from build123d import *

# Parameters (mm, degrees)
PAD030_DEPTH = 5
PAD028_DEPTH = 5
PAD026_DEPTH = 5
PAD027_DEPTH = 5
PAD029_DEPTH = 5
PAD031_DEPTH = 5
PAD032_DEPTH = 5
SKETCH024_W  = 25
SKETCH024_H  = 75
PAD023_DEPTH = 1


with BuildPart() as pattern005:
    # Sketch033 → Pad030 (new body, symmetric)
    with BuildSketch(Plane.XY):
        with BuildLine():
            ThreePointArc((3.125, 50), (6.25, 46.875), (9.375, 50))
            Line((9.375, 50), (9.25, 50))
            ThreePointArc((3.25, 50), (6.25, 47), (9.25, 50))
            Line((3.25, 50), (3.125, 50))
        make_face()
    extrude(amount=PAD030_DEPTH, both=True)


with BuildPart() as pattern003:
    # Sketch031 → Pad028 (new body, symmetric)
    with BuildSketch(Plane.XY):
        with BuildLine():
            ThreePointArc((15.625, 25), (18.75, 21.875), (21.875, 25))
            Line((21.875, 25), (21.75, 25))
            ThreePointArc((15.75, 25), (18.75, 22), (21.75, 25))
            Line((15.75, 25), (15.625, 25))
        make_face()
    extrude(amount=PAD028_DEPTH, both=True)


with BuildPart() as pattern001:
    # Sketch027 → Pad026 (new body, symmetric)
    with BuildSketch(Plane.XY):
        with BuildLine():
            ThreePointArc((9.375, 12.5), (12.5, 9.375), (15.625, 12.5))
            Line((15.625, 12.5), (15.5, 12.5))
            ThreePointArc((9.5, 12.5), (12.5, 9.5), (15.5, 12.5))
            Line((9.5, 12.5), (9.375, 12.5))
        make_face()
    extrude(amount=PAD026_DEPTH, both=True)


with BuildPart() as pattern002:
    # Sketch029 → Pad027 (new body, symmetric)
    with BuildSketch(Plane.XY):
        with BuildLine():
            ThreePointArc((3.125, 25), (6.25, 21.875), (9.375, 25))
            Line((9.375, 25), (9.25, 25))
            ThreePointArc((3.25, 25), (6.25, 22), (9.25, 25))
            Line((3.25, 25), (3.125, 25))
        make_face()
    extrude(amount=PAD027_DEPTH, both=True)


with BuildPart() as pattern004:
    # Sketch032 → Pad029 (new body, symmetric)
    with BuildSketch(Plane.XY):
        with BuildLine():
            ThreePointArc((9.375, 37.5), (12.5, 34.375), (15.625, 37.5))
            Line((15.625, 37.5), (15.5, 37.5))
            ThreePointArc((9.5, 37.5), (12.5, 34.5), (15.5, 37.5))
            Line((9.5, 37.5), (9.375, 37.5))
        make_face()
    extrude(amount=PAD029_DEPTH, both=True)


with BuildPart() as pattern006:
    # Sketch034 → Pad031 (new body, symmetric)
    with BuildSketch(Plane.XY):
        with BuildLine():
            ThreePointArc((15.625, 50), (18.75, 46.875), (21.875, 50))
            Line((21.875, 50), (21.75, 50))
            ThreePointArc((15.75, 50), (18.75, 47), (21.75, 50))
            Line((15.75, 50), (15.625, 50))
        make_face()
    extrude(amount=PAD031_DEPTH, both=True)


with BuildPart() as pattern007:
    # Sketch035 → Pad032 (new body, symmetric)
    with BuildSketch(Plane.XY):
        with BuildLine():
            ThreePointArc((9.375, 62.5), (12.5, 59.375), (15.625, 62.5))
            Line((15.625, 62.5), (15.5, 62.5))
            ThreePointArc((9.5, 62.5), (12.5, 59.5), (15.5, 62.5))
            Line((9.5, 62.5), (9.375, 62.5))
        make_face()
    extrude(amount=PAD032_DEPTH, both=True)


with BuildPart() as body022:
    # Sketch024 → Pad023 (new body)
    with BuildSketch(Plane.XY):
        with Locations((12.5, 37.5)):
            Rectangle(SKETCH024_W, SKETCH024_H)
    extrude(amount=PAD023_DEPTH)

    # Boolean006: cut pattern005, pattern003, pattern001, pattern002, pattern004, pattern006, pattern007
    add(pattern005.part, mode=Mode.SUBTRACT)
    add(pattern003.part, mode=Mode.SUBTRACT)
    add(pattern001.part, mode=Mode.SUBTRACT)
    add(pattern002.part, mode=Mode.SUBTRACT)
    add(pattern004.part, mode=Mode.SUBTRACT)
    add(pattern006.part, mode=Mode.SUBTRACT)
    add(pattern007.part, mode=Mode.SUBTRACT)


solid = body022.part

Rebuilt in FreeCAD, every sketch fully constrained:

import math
import FreeCAD as App
import Part
import Sketcher

V = App.Vector
Q = App.Units.Quantity


def add_polygon(sketch, points):
    """Adds a closed chain of lines whose ends are joined by coincident constraints."""
    first, n = sketch.GeometryCount, len(points)
    for a, b in zip(points, points[1:] + points[:1]):
        sketch.addGeometry(Part.LineSegment(App.Vector(*a, 0), App.Vector(*b, 0)), False)
    for i in range(n):
        sketch.addConstraint(Sketcher.Constraint("Coincident", first + i, 2, first + (i + 1) % n, 1))

doc = App.newDocument("Part")
params = doc.addObject("Spreadsheet::Sheet", "Params")
for row, (alias, value) in enumerate([
    ("sketch1_radius", "3 mm"),
    ("pad1_length", "10 mm"),
    ("sketch2_radius", "3 mm"),
    ("pad2_length", "10 mm"),
    ("sketch3_radius", "3 mm"),
    ("pad3_length", "10 mm"),
    ("sketch4_radius", "3 mm"),
    ("pad4_length", "10 mm"),
    ("sketch5_radius", "3 mm"),
    ("pad5_length", "10 mm"),
    ("sketch6_radius", "3 mm"),
    ("pad6_length", "10 mm"),
    ("sketch7_radius", "3 mm"),
    ("pad7_length", "10 mm"),
    ("sketch8_width", "25 mm"),
    ("sketch8_height", "75 mm"),
    ("pad8_length", "1 mm"),
], start=1):
    params.set(f"A{row}", alias)
    params.set(f"B{row}", "=" + value)
    params.setAlias(f"B{row}", alias)

body = doc.addObject("PartDesign::Body", "Body")

# Sketch on XY plane
sketch1 = body.newObject("Sketcher::SketchObject", "Sketch")
sketch1.AttachmentSupport = (doc.getObject("XY_Plane"), [""])
sketch1.MapMode = "FlatFace"
sketch1.addGeometry([
    Part.ArcOfCircle(Part.Circle(V(6.25, 50, 0), V(0, 0, 1), 3.12), math.radians(180), math.radians(360)),
    Part.LineSegment(V(9.38, 50, 0), V(9.25, 50, 0)),
    Part.ArcOfCircle(Part.Circle(V(6.25, 50, 0), V(0, 0, 1), 3), math.radians(180), math.radians(360)),
    Part.LineSegment(V(3.25, 50, 0), V(3.12, 50, 0)),
], False)
sketch1.addConstraint([
    Sketcher.Constraint("Coincident", 0, 2, 1, 1),
    Sketcher.Constraint("Coincident", 1, 2, 2, 2),
    Sketcher.Constraint("Coincident", 2, 1, 3, 1),
    Sketcher.Constraint("Coincident", 3, 2, 0, 1),
    Sketcher.Constraint("Horizontal", 1),
    Sketcher.Constraint("Horizontal", 3),
    Sketcher.Constraint("Coincident", 2, 3, 0, 3),
    Sketcher.Constraint("Horizontal", 2, 3, 0, 2),
    Sketcher.Constraint("Horizontal", 1, 2, 2, 1),
    Sketcher.Constraint("Radius", 2, Q("3 mm")),
    Sketcher.Constraint("DistanceY", -1, 1, 0, 3, Q("50 mm")),
    Sketcher.Constraint("Radius", 0, Q("3.125 mm")),
    Sketcher.Constraint("DistanceX", -1, 1, 0, 3, Q("6.25 mm")),
])
sketch1.setExpression("Constraints[9]", "Params.sketch1_radius")
pad1 = body.newObject("PartDesign::Pad", "Pad")
pad1.Profile = sketch1
pad1.setExpression("Length", "Params.pad1_length")
pad1.Midplane = True
body2 = doc.addObject("PartDesign::Body", "Body001")

# Sketch on XY plane
sketch2 = body2.newObject("Sketcher::SketchObject", "Sketch001")
sketch2.AttachmentSupport = (doc.getObject("XY_Plane001"), [""])
sketch2.MapMode = "FlatFace"
sketch2.addGeometry([
    Part.ArcOfCircle(Part.Circle(V(18.75, 25, 0), V(0, 0, 1), 3.12), math.radians(180), math.radians(360)),
    Part.LineSegment(V(21.88, 25, 0), V(21.75, 25, 0)),
    Part.ArcOfCircle(Part.Circle(V(18.75, 25, 0), V(0, 0, 1), 3), math.radians(180), math.radians(360)),
    Part.LineSegment(V(15.75, 25, 0), V(15.62, 25, 0)),
], False)
sketch2.addConstraint([
    Sketcher.Constraint("Coincident", 0, 2, 1, 1),
    Sketcher.Constraint("Coincident", 1, 2, 2, 2),
    Sketcher.Constraint("Coincident", 2, 1, 3, 1),
    Sketcher.Constraint("Coincident", 3, 2, 0, 1),
    Sketcher.Constraint("Horizontal", 1),
    Sketcher.Constraint("Horizontal", 3),
    Sketcher.Constraint("Coincident", 2, 3, 0, 3),
    Sketcher.Constraint("Horizontal", 2, 3, 0, 2),
    Sketcher.Constraint("Horizontal", 1, 2, 2, 1),
    Sketcher.Constraint("Radius", 2, Q("3 mm")),
    Sketcher.Constraint("DistanceY", -1, 1, 0, 3, Q("25 mm")),
    Sketcher.Constraint("Radius", 0, Q("3.125 mm")),
    Sketcher.Constraint("DistanceX", -1, 1, 0, 3, Q("18.75 mm")),
])
sketch2.setExpression("Constraints[9]", "Params.sketch2_radius")
pad2 = body2.newObject("PartDesign::Pad", "Pad001")
pad2.Profile = sketch2
pad2.setExpression("Length", "Params.pad2_length")
pad2.Midplane = True
body3 = doc.addObject("PartDesign::Body", "Body002")

# Sketch on XY plane
sketch3 = body3.newObject("Sketcher::SketchObject", "Sketch002")
sketch3.AttachmentSupport = (doc.getObject("XY_Plane002"), [""])
sketch3.MapMode = "FlatFace"
sketch3.addGeometry([
    Part.ArcOfCircle(Part.Circle(V(12.5, 12.5, 0), V(0, 0, 1), 3.12), math.radians(180), math.radians(360)),
    Part.LineSegment(V(15.62, 12.5, 0), V(15.5, 12.5, 0)),
    Part.ArcOfCircle(Part.Circle(V(12.5, 12.5, 0), V(0, 0, 1), 3), math.radians(180), math.radians(360)),
    Part.LineSegment(V(9.5, 12.5, 0), V(9.38, 12.5, 0)),
], False)
sketch3.addConstraint([
    Sketcher.Constraint("Coincident", 0, 2, 1, 1),
    Sketcher.Constraint("Coincident", 1, 2, 2, 2),
    Sketcher.Constraint("Coincident", 2, 1, 3, 1),
    Sketcher.Constraint("Coincident", 3, 2, 0, 1),
    Sketcher.Constraint("Horizontal", 1),
    Sketcher.Constraint("Horizontal", 3),
    Sketcher.Constraint("Coincident", 2, 3, 0, 3),
    Sketcher.Constraint("Horizontal", 2, 3, 0, 2),
    Sketcher.Constraint("Horizontal", 1, 2, 2, 1),
    Sketcher.Constraint("Radius", 2, Q("3 mm")),
    Sketcher.Constraint("Radius", 0, Q("3.125 mm")),
    Sketcher.Constraint("DistanceX", -1, 1, 0, 3, Q("12.5 mm")),
    Sketcher.Constraint("DistanceY", -1, 1, 0, 3, Q("12.5 mm")),
])
sketch3.setExpression("Constraints[9]", "Params.sketch3_radius")
pad3 = body3.newObject("PartDesign::Pad", "Pad002")
pad3.Profile = sketch3
pad3.setExpression("Length", "Params.pad3_length")
pad3.Midplane = True
body4 = doc.addObject("PartDesign::Body", "Body003")

# Sketch on XY plane
sketch4 = body4.newObject("Sketcher::SketchObject", "Sketch003")
sketch4.AttachmentSupport = (doc.getObject("XY_Plane003"), [""])
sketch4.MapMode = "FlatFace"
sketch4.addGeometry([
    Part.ArcOfCircle(Part.Circle(V(6.25, 25, 0), V(0, 0, 1), 3.12), math.radians(180), math.radians(360)),
    Part.LineSegment(V(9.38, 25, 0), V(9.25, 25, 0)),
    Part.ArcOfCircle(Part.Circle(V(6.25, 25, 0), V(0, 0, 1), 3), math.radians(180), math.radians(360)),
    Part.LineSegment(V(3.25, 25, 0), V(3.12, 25, 0)),
], False)
sketch4.addConstraint([
    Sketcher.Constraint("Coincident", 0, 2, 1, 1),
    Sketcher.Constraint("Coincident", 1, 2, 2, 2),
    Sketcher.Constraint("Coincident", 2, 1, 3, 1),
    Sketcher.Constraint("Coincident", 3, 2, 0, 1),
    Sketcher.Constraint("Horizontal", 1),
    Sketcher.Constraint("Horizontal", 3),
    Sketcher.Constraint("Coincident", 2, 3, 0, 3),
    Sketcher.Constraint("Horizontal", 2, 3, 0, 2),
    Sketcher.Constraint("Horizontal", 1, 2, 2, 1),
    Sketcher.Constraint("Radius", 2, Q("3 mm")),
    Sketcher.Constraint("DistanceY", -1, 1, 0, 3, Q("25 mm")),
    Sketcher.Constraint("Radius", 0, Q("3.125 mm")),
    Sketcher.Constraint("DistanceX", -1, 1, 0, 3, Q("6.25 mm")),
])
sketch4.setExpression("Constraints[9]", "Params.sketch4_radius")
pad4 = body4.newObject("PartDesign::Pad", "Pad003")
pad4.Profile = sketch4
pad4.setExpression("Length", "Params.pad4_length")
pad4.Midplane = True
body5 = doc.addObject("PartDesign::Body", "Body004")

# Sketch on XY plane
sketch5 = body5.newObject("Sketcher::SketchObject", "Sketch004")
sketch5.AttachmentSupport = (doc.getObject("XY_Plane004"), [""])
sketch5.MapMode = "FlatFace"
sketch5.addGeometry([
    Part.ArcOfCircle(Part.Circle(V(12.5, 37.5, 0), V(0, 0, 1), 3.12), math.radians(180), math.radians(360)),
    Part.LineSegment(V(15.62, 37.5, 0), V(15.5, 37.5, 0)),
    Part.ArcOfCircle(Part.Circle(V(12.5, 37.5, 0), V(0, 0, 1), 3), math.radians(180), math.radians(360)),
    Part.LineSegment(V(9.5, 37.5, 0), V(9.38, 37.5, 0)),
], False)
sketch5.addConstraint([
    Sketcher.Constraint("Coincident", 0, 2, 1, 1),
    Sketcher.Constraint("Coincident", 1, 2, 2, 2),
    Sketcher.Constraint("Coincident", 2, 1, 3, 1),
    Sketcher.Constraint("Coincident", 3, 2, 0, 1),
    Sketcher.Constraint("Horizontal", 1),
    Sketcher.Constraint("Horizontal", 3),
    Sketcher.Constraint("Coincident", 2, 3, 0, 3),
    Sketcher.Constraint("Horizontal", 2, 3, 0, 2),
    Sketcher.Constraint("Horizontal", 1, 2, 2, 1),
    Sketcher.Constraint("Radius", 2, Q("3 mm")),
    Sketcher.Constraint("Radius", 0, Q("3.125 mm")),
    Sketcher.Constraint("DistanceX", -1, 1, 0, 3, Q("12.5 mm")),
    Sketcher.Constraint("DistanceY", -1, 1, 0, 3, Q("37.5 mm")),
])
sketch5.setExpression("Constraints[9]", "Params.sketch5_radius")
pad5 = body5.newObject("PartDesign::Pad", "Pad004")
pad5.Profile = sketch5
pad5.setExpression("Length", "Params.pad5_length")
pad5.Midplane = True
body6 = doc.addObject("PartDesign::Body", "Body005")

# Sketch on XY plane
sketch6 = body6.newObject("Sketcher::SketchObject", "Sketch005")
sketch6.AttachmentSupport = (doc.getObject("XY_Plane005"), [""])
sketch6.MapMode = "FlatFace"
sketch6.addGeometry([
    Part.ArcOfCircle(Part.Circle(V(18.75, 50, 0), V(0, 0, 1), 3.12), math.radians(180), math.radians(360)),
    Part.LineSegment(V(21.88, 50, 0), V(21.75, 50, 0)),
    Part.ArcOfCircle(Part.Circle(V(18.75, 50, 0), V(0, 0, 1), 3), math.radians(180), math.radians(360)),
    Part.LineSegment(V(15.75, 50, 0), V(15.62, 50, 0)),
], False)
sketch6.addConstraint([
    Sketcher.Constraint("Coincident", 0, 2, 1, 1),
    Sketcher.Constraint("Coincident", 1, 2, 2, 2),
    Sketcher.Constraint("Coincident", 2, 1, 3, 1),
    Sketcher.Constraint("Coincident", 3, 2, 0, 1),
    Sketcher.Constraint("Horizontal", 1),
    Sketcher.Constraint("Horizontal", 3),
    Sketcher.Constraint("Coincident", 2, 3, 0, 3),
    Sketcher.Constraint("Horizontal", 2, 3, 0, 2),
    Sketcher.Constraint("Horizontal", 1, 2, 2, 1),
    Sketcher.Constraint("Radius", 2, Q("3 mm")),
    Sketcher.Constraint("DistanceY", -1, 1, 0, 3, Q("50 mm")),
    Sketcher.Constraint("Radius", 0, Q("3.125 mm")),
    Sketcher.Constraint("DistanceX", -1, 1, 0, 3, Q("18.75 mm")),
])
sketch6.setExpression("Constraints[9]", "Params.sketch6_radius")
pad6 = body6.newObject("PartDesign::Pad", "Pad005")
pad6.Profile = sketch6
pad6.setExpression("Length", "Params.pad6_length")
pad6.Midplane = True
body7 = doc.addObject("PartDesign::Body", "Body006")

# Sketch on XY plane
sketch7 = body7.newObject("Sketcher::SketchObject", "Sketch006")
sketch7.AttachmentSupport = (doc.getObject("XY_Plane006"), [""])
sketch7.MapMode = "FlatFace"
sketch7.addGeometry([
    Part.ArcOfCircle(Part.Circle(V(12.5, 62.5, 0), V(0, 0, 1), 3.12), math.radians(180), math.radians(360)),
    Part.LineSegment(V(15.62, 62.5, 0), V(15.5, 62.5, 0)),
    Part.ArcOfCircle(Part.Circle(V(12.5, 62.5, 0), V(0, 0, 1), 3), math.radians(180), math.radians(360)),
    Part.LineSegment(V(9.5, 62.5, 0), V(9.38, 62.5, 0)),
], False)
sketch7.addConstraint([
    Sketcher.Constraint("Coincident", 0, 2, 1, 1),
    Sketcher.Constraint("Coincident", 1, 2, 2, 2),
    Sketcher.Constraint("Coincident", 2, 1, 3, 1),
    Sketcher.Constraint("Coincident", 3, 2, 0, 1),
    Sketcher.Constraint("Horizontal", 1),
    Sketcher.Constraint("Horizontal", 3),
    Sketcher.Constraint("Coincident", 2, 3, 0, 3),
    Sketcher.Constraint("Horizontal", 2, 3, 0, 2),
    Sketcher.Constraint("Horizontal", 1, 2, 2, 1),
    Sketcher.Constraint("Radius", 2, Q("3 mm")),
    Sketcher.Constraint("Radius", 0, Q("3.125 mm")),
    Sketcher.Constraint("DistanceX", -1, 1, 0, 3, Q("12.5 mm")),
    Sketcher.Constraint("DistanceY", -1, 1, 0, 3, Q("62.5 mm")),
])
sketch7.setExpression("Constraints[9]", "Params.sketch7_radius")
pad7 = body7.newObject("PartDesign::Pad", "Pad006")
pad7.Profile = sketch7
pad7.setExpression("Length", "Params.pad7_length")
pad7.Midplane = True
body8 = doc.addObject("PartDesign::Body", "Body007")

# Sketch on XY plane
sketch8 = body8.newObject("Sketcher::SketchObject", "Sketch007")
sketch8.AttachmentSupport = (doc.getObject("XY_Plane007"), [""])
sketch8.MapMode = "FlatFace"
add_polygon(sketch8, [(0, 75), (0, 0), (25, 0), (25, 75)])  # lines 0-3
sketch8.addConstraint([
    Sketcher.Constraint("Vertical", 0),
    Sketcher.Constraint("Horizontal", 1),
    Sketcher.Constraint("Vertical", 2),
    Sketcher.Constraint("Horizontal", 3),
    Sketcher.Constraint("Coincident", 0, 2, -1, 1),
    Sketcher.Constraint("DistanceX", 1, 1, 1, 2, Q("25 mm")),
    Sketcher.Constraint("DistanceY", 0, 2, 0, 1, Q("75 mm")),
])
sketch8.setExpression("Constraints[9]", "Params.sketch8_width")
sketch8.setExpression("Constraints[10]", "Params.sketch8_height")
pad8 = body8.newObject("PartDesign::Pad", "Pad007")
pad8.Profile = sketch8
pad8.setExpression("Length", "Params.pad8_length")
doc.recompute()

boolean = body8.newObject("PartDesign::Boolean", "Boolean")
boolean.Type = "Cut"
boolean.addObjects([body])
doc.recompute()

boolean2 = body8.newObject("PartDesign::Boolean", "Boolean001")
boolean2.Type = "Cut"
boolean2.addObjects([body2])
doc.recompute()

boolean3 = body8.newObject("PartDesign::Boolean", "Boolean002")
boolean3.Type = "Cut"
boolean3.addObjects([body3])
doc.recompute()

boolean4 = body8.newObject("PartDesign::Boolean", "Boolean003")
boolean4.Type = "Cut"
boolean4.addObjects([body4])
doc.recompute()

boolean5 = body8.newObject("PartDesign::Boolean", "Boolean004")
boolean5.Type = "Cut"
boolean5.addObjects([body5])
doc.recompute()

boolean6 = body8.newObject("PartDesign::Boolean", "Boolean005")
boolean6.Type = "Cut"
boolean6.addObjects([body6])
doc.recompute()

boolean7 = body8.newObject("PartDesign::Boolean", "Boolean006")
boolean7.Type = "Cut"
boolean7.addObjects([body7])

doc.recompute()
